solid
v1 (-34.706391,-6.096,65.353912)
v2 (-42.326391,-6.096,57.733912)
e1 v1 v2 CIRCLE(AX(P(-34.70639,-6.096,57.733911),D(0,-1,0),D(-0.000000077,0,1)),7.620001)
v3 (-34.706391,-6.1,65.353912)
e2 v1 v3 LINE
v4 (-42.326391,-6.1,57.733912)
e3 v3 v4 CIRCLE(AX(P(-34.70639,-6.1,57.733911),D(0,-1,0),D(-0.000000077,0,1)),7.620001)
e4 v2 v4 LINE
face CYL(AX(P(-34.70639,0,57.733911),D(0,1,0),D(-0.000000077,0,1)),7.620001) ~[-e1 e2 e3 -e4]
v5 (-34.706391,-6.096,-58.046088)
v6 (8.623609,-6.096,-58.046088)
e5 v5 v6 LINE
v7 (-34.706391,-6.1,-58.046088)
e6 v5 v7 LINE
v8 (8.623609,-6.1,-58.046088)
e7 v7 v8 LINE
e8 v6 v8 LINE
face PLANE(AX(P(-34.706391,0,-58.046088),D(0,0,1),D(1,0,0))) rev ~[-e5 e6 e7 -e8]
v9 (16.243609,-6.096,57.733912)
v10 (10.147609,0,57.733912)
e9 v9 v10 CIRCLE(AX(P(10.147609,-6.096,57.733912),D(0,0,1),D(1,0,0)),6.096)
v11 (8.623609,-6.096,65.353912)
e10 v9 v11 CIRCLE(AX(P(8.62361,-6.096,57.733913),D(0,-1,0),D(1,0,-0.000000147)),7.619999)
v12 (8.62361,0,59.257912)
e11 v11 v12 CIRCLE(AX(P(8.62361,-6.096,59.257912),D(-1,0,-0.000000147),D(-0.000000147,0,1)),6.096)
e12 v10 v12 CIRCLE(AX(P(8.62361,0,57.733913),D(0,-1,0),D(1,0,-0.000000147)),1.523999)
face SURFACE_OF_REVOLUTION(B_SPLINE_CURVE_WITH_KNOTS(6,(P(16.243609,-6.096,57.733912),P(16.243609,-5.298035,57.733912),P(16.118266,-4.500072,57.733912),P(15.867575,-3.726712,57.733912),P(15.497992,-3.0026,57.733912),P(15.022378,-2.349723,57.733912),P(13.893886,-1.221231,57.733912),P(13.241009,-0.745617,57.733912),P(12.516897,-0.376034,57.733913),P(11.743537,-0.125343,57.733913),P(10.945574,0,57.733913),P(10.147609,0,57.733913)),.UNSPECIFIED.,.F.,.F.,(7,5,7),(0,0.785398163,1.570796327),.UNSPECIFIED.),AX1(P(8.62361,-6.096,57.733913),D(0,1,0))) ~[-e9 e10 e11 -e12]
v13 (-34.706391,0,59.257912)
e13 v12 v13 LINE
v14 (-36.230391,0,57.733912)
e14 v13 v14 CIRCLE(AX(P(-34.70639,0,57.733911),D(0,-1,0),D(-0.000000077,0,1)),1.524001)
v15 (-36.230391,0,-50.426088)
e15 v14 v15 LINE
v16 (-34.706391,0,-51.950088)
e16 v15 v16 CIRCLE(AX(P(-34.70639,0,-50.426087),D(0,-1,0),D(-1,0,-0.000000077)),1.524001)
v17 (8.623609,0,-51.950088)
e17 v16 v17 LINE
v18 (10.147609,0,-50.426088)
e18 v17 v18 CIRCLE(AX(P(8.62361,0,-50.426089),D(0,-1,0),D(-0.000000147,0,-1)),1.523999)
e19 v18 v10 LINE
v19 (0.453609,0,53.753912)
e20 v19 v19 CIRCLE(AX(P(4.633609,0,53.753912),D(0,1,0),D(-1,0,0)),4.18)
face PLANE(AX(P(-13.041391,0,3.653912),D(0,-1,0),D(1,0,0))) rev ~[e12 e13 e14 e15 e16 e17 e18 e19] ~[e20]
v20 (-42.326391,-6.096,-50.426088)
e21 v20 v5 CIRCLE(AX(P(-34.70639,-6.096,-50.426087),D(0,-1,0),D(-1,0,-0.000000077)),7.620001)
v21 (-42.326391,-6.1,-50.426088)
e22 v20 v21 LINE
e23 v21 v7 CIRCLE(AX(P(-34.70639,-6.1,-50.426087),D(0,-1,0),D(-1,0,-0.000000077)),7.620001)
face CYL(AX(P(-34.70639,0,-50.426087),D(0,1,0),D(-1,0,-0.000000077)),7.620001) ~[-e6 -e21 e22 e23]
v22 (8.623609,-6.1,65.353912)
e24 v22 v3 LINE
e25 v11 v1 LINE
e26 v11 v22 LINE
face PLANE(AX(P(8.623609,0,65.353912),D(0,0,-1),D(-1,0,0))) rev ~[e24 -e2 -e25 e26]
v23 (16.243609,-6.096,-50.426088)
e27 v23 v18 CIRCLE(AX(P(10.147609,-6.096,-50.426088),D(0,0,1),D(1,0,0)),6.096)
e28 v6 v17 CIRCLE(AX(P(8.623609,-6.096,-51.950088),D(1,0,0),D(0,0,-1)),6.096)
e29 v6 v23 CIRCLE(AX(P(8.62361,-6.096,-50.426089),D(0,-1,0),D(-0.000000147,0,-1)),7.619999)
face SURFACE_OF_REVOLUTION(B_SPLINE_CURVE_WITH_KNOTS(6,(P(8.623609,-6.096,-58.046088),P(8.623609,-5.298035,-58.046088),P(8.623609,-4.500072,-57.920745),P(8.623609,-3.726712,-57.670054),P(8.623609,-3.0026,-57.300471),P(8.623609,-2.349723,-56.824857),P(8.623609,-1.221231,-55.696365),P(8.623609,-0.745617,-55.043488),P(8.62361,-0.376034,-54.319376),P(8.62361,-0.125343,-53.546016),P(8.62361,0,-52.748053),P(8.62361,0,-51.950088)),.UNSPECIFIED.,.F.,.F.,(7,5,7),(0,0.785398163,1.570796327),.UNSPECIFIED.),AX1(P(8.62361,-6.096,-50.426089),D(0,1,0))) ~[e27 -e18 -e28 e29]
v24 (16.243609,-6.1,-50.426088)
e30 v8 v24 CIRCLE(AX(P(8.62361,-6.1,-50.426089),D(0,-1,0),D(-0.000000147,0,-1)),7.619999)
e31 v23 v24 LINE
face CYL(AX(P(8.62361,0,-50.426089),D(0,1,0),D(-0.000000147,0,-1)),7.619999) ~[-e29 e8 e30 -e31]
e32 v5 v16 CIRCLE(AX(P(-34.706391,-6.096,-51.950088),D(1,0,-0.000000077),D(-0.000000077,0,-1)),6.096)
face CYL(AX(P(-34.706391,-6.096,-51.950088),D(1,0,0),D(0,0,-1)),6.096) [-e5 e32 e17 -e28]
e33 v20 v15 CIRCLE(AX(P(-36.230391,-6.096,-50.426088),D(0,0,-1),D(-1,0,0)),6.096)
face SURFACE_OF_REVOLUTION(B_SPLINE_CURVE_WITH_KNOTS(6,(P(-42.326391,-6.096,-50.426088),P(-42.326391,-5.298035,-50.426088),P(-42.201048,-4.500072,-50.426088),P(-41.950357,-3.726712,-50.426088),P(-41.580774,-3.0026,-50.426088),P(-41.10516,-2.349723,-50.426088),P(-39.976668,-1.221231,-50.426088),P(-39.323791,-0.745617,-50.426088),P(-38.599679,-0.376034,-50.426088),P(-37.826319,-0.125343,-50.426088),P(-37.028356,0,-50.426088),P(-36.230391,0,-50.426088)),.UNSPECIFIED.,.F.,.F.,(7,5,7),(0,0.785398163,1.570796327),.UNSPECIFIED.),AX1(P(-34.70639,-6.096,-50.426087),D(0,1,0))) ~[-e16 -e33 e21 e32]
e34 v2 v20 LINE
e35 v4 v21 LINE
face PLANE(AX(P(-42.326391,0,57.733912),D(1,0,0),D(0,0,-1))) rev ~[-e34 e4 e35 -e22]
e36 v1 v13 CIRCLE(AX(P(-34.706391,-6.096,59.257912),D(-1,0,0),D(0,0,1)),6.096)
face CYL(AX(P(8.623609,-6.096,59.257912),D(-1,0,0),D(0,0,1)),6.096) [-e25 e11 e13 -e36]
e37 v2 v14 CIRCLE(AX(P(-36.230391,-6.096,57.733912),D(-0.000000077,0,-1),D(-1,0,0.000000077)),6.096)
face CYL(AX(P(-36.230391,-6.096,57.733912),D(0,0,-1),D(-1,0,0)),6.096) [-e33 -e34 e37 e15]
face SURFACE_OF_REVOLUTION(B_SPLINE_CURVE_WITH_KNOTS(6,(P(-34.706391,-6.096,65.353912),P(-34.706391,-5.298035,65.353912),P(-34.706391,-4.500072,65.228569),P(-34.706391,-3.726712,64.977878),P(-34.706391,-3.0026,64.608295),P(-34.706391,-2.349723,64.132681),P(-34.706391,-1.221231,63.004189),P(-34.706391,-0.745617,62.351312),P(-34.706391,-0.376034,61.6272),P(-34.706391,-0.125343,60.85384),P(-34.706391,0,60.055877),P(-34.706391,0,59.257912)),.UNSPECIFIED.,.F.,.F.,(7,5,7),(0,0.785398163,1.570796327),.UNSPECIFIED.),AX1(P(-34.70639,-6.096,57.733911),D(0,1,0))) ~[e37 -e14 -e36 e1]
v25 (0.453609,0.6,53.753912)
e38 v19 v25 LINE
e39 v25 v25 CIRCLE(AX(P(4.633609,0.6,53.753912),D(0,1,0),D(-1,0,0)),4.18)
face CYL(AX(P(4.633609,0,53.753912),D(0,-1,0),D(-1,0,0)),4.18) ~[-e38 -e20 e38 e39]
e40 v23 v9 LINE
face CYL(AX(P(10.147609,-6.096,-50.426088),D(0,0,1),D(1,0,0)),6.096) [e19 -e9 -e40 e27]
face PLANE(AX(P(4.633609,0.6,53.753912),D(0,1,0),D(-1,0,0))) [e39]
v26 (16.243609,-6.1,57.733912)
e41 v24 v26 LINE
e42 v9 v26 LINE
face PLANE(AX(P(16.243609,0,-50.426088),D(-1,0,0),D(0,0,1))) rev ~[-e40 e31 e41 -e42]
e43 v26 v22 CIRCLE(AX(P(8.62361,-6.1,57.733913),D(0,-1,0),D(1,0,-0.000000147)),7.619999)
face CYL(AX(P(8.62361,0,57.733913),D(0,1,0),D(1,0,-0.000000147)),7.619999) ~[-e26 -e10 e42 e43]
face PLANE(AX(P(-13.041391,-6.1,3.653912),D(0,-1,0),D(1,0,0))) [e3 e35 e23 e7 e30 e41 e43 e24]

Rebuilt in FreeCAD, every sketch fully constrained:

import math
import FreeCAD as App
import Part
import Sketcher

V = App.Vector
Q = App.Units.Quantity


def edges_at(feature, points):
    """Names of the edges that pass closest to the given points."""
    edges = feature.Shape.Edges
    near = lambda p: min(range(len(edges)), key=lambda i: edges[i].distToShape(Part.Vertex(*p))[0])
    return sorted({f"Edge{near(p) + 1}" for p in points})

doc = App.newDocument("Part")
body = doc.addObject("PartDesign::Body", "Body")

sketch1 = body.newObject("Sketcher::SketchObject", "Sketch")
sketch1.AttachmentSupport = (doc.getObject("XZ_Plane"), [""])
sketch1.MapMode = "FlatFace"
sketch1.addGeometry(Part.LineSegment(V(9, 65, 0), V(-35, 65, 0)), False)
sketch1.addGeometry(Part.ArcOfCircle(Part.Circle(V(-35, 58, 0), V(0, 0, 1), 8), math.radians(90), math.radians(180)), False)
sketch1.addGeometry(Part.LineSegment(V(-42, 58, 0), V(-42, -50, 0)), False)
sketch1.addGeometry(Part.ArcOfCircle(Part.Circle(V(-35, -50, 0), V(0, 0, 1), 8), math.radians(-180), math.radians(-90)), False)
sketch1.addGeometry(Part.LineSegment(V(-35, -58, 0), V(9, -58, 0)), False)
sketch1.addGeometry(Part.ArcOfCircle(Part.Circle(V(9, -50, 0), V(0, 0, 1), 8), math.radians(-90), math.radians(0)), False)
sketch1.addGeometry(Part.LineSegment(V(16, -50, 0), V(16, 58, 0)), False)
sketch1.addGeometry(Part.ArcOfCircle(Part.Circle(V(9, 58, 0), V(0, 0, 1), 8), math.radians(0), math.radians(90)), False)
sketch1.addConstraint(Sketcher.Constraint("Tangent", 0, 2, 1, 1))
sketch1.addConstraint(Sketcher.Constraint("Tangent", 1, 2, 2, 1))
sketch1.addConstraint(Sketcher.Constraint("Tangent", 2, 2, 3, 1))
sketch1.addConstraint(Sketcher.Constraint("Tangent", 3, 2, 4, 1))
sketch1.addConstraint(Sketcher.Constraint("Tangent", 4, 2, 5, 1))
sketch1.addConstraint(Sketcher.Constraint("Tangent", 5, 2, 6, 1))
sketch1.addConstraint(Sketcher.Constraint("Tangent", 6, 2, 7, 1))
sketch1.addConstraint(Sketcher.Constraint("Tangent", 7, 2, 0, 1))
sketch1.addConstraint(Sketcher.Constraint("Horizontal", 0))
sketch1.addConstraint(Sketcher.Constraint("Vertical", 2))
sketch1.addConstraint(Sketcher.Constraint("Horizontal", 4))
sketch1.addConstraint(Sketcher.Constraint("Vertical", 6))
sketch1.addConstraint(Sketcher.Constraint("Equal", 1, 3))
sketch1.addConstraint(Sketcher.Constraint("Equal", 3, 5))
sketch1.addConstraint(Sketcher.Constraint("Equal", 5, 7))
sketch1.addConstraint(Sketcher.Constraint("Radius", 1, Q("0.3 in")))
sketch1.addConstraint(Sketcher.Constraint("DistanceX", 0, 2, 0, 1, Q("43.33 mm")))
sketch1.addConstraint(Sketcher.Constraint("DistanceY", 2, 2, 2, 1, Q("108.16 mm")))
sketch1.addConstraint(Sketcher.Constraint("DistanceX", 1, 3, -1, 1, Q("34.70639 mm")))
sketch1.addConstraint(Sketcher.Constraint("DistanceY", -1, 1, 1, 3, Q("57.733911 mm")))
pad1 = body.newObject("PartDesign::Pad", "Pad")
pad1.Profile = sketch1
pad1.Length = 6.1
doc.recompute()

fillet = body.newObject("PartDesign::Fillet", "Fillet")
fillet.Base = (pad1, edges_at(pad1, [
    (16.244, 0, 3.654),
    (14.012, 0, 63.122),
    (-13.041, 0, 65.354),
    (-40.095, 0, 63.122),
    (-42.326, 0, 3.654),
    (-40.095, 0, -55.814),
    (-13.041, 0, -58.046),
    (14.012, 0, -55.814),
]))
fillet.Radius = Q("0.24 in")

sketch2 = body.newObject("Sketcher::SketchObject", "Sketch001")
sketch2.AttachmentSupport = (doc.getObject("XZ_Plane"), [""])
sketch2.MapMode = "FlatFace"
sketch2.addGeometry(Part.Circle(V(4.6, 53.8, 0), V(0, 0, 1), 4.2), False)
sketch2.addConstraint(Sketcher.Constraint("Diameter", 0, Q("8.36 mm")))
sketch2.addConstraint(Sketcher.Constraint("DistanceX", -1, 1, 0, 3, Q("4.633609 mm")))
sketch2.addConstraint(Sketcher.Constraint("DistanceY", -1, 1, 0, 3, Q("53.753912 mm")))
pad2 = body.newObject("PartDesign::Pad", "Pad001")
pad2.Profile = sketch2
pad2.Length = 0.6
pad2.Reversed = True

doc.recompute()
